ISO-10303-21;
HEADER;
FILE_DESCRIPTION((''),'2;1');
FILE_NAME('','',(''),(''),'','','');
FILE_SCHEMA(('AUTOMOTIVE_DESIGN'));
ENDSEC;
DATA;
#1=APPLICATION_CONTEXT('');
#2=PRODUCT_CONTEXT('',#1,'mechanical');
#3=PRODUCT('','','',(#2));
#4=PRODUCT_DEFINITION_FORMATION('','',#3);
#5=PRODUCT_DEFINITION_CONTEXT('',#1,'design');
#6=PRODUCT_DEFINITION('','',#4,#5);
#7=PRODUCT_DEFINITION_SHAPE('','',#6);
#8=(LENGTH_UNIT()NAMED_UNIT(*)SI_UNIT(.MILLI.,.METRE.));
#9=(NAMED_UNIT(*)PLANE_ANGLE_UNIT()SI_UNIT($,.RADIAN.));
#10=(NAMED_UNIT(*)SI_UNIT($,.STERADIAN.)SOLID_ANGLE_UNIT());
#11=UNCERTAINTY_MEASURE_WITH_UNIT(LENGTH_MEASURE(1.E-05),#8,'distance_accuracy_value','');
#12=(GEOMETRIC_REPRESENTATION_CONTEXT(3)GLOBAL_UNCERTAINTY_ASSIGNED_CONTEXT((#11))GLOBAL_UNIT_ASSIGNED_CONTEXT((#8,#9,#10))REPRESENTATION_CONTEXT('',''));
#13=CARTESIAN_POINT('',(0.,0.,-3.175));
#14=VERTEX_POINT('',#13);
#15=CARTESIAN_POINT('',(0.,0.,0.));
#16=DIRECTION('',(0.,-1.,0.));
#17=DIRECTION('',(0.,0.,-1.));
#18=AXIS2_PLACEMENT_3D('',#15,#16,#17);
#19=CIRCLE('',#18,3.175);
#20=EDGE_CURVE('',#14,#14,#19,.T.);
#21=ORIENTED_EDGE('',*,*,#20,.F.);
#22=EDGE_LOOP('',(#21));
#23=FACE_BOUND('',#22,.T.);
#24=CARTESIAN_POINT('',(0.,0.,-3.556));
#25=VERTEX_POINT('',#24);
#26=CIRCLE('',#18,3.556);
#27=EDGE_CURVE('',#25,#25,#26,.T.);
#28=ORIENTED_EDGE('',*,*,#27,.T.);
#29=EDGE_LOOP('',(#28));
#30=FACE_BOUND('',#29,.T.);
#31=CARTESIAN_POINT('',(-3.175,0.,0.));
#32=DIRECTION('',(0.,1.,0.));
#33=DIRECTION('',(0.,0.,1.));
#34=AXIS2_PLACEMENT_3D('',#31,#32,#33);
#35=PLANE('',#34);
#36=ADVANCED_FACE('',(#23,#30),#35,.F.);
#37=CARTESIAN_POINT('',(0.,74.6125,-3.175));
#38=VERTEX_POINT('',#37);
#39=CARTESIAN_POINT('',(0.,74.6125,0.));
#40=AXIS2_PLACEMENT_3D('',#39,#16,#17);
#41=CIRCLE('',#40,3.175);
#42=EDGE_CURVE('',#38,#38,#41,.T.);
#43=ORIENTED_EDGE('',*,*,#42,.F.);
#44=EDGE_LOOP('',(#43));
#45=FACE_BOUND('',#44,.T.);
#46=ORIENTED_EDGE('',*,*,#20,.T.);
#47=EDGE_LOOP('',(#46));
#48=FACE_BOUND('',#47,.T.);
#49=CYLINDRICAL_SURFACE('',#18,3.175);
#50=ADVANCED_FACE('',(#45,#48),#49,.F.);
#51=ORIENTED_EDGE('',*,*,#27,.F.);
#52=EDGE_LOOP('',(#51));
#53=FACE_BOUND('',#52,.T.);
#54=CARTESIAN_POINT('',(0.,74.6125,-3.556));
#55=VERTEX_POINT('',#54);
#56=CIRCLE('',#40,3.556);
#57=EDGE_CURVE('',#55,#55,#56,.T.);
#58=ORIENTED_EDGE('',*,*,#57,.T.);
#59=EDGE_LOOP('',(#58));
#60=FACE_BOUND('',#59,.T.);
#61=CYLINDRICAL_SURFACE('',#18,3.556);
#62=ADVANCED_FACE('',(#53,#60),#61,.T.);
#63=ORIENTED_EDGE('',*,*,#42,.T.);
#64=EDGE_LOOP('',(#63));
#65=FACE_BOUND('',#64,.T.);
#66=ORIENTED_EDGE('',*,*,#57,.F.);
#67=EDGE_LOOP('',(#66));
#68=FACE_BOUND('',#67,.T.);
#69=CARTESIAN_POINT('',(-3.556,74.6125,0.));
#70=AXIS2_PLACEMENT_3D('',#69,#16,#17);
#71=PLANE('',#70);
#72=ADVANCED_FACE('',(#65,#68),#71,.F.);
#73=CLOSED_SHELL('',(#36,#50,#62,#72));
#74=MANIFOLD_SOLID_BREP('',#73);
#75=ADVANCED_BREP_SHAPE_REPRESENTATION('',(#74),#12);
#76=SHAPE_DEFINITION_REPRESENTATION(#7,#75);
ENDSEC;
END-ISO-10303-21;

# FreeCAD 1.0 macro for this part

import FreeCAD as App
import Part
import Sketcher

V = App.Vector
Q = App.Units.Quantity

doc = App.newDocument("Part")
body = doc.addObject("PartDesign::Body", "Body")

# Sketch on XY plane
sketch1 = body.newObject("Sketcher::SketchObject", "Sketch")
sketch1.AttachmentSupport = (doc.getObject("XY_Plane"), [""])
sketch1.MapMode = "FlatFace"
sketch1.addGeometry([
    Part.LineSegment(V(-3.556, 74.6125, 0), V(-3.556, 0, 0)),
    Part.LineSegment(V(-3.556, 0, 0), V(-3.175, 0, 0)),
    Part.LineSegment(V(-3.175, 0, 0), V(-3.175, 74.6125, 0)),
    Part.LineSegment(V(-3.175, 74.6125, 0), V(-3.556, 74.6125, 0)),
], False)
sketch1.addConstraint([
    Sketcher.Constraint("Coincident", 0, 2, 1, 1),
    Sketcher.Constraint("Coincident", 1, 2, 2, 1),
    Sketcher.Constraint("Coincident", 2, 2, 3, 1),
    Sketcher.Constraint("Coincident", 3, 2, 0, 1),
    Sketcher.Constraint("Vertical", 0),
    Sketcher.Constraint("Horizontal", 1),
    Sketcher.Constraint("Vertical", 2),
    Sketcher.Constraint("Horizontal", 3),
    Sketcher.Constraint("PointOnObject", 0, 2, -1),
    Sketcher.Constraint("DistanceX", 1, 1, 1, 2, Q("0.015 in")),
    Sketcher.Constraint("DistanceY", 0, 2, 0, 1, Q("2.9375 in")),
    Sketcher.Constraint("DistanceX", 0, 2, -1, 1, Q("0.14 in")),
])
revolution = body.newObject("PartDesign::Revolution", "Revolution")
revolution.Profile = sketch1
revolution.ReferenceAxis = (sketch1, ["V_Axis"])
revolution.Angle = 360

doc.recompute()
